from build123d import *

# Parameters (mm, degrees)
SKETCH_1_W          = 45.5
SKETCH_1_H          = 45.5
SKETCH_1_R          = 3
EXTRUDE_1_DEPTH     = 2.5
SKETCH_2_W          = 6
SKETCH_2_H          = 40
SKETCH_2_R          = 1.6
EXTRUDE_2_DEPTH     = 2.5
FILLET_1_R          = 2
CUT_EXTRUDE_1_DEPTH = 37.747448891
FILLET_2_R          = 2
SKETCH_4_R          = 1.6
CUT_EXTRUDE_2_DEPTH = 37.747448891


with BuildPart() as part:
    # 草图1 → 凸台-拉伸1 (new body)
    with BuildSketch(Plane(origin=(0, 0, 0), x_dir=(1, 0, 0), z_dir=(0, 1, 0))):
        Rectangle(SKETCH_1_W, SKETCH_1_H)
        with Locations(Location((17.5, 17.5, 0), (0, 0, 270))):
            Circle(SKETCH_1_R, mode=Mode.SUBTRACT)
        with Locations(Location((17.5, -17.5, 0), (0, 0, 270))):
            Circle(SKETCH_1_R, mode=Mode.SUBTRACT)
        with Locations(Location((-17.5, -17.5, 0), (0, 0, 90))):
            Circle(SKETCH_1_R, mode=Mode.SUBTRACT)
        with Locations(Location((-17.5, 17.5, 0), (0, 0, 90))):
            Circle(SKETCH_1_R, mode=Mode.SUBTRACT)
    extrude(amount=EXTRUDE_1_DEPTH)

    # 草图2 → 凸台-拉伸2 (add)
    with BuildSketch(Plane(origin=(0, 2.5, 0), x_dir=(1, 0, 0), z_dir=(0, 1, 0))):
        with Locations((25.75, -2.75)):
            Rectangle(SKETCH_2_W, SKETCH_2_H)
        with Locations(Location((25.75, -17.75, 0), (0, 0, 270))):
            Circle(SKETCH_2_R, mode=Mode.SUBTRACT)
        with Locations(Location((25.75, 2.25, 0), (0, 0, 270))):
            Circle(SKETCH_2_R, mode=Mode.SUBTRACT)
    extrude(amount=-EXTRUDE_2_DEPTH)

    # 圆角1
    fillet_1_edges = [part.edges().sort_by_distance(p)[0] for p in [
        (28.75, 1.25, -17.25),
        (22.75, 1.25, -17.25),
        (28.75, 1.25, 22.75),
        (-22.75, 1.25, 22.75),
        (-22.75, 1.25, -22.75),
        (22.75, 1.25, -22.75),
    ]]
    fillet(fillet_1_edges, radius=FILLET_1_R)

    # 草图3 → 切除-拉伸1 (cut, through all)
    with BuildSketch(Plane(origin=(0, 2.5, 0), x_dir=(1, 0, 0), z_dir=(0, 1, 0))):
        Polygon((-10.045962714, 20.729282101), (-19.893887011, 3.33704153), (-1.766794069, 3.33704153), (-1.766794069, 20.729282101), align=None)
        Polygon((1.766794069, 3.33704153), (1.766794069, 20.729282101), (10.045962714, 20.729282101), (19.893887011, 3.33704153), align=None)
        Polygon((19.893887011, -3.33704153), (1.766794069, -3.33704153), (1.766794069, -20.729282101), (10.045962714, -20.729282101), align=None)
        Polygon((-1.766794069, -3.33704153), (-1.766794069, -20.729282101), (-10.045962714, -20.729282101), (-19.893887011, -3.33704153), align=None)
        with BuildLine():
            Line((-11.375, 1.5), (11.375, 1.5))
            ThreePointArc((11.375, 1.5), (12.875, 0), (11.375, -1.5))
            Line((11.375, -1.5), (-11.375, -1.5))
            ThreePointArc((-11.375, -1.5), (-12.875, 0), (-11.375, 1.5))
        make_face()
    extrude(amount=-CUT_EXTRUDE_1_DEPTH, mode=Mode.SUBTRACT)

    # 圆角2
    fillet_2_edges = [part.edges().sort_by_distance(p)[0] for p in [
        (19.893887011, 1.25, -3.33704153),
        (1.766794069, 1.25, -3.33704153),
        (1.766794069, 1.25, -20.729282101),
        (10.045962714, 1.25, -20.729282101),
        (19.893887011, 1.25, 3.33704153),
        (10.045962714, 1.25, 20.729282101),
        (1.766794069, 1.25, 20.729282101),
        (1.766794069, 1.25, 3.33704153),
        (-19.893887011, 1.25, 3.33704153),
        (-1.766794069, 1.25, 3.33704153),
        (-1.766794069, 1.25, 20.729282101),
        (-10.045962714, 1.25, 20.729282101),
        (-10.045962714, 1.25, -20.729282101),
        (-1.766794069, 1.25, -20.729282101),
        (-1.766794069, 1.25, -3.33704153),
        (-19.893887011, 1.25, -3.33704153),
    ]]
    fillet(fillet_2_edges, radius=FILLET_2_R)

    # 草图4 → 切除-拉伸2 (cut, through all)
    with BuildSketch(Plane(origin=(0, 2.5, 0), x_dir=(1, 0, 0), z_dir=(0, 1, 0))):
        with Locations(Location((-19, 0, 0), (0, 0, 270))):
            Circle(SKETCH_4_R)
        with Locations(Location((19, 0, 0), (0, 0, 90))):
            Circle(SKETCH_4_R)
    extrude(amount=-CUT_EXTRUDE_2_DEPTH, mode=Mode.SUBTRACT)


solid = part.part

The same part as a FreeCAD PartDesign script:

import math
import FreeCAD as App
import Part
import Sketcher
from FreeCAD import Vector
Q = App.Units.Quantity


def edges_at(feature, points):
    """Names of the edges that pass closest to the given points."""
    edges = feature.Shape.Edges
    near = lambda p: min(range(len(edges)), key=lambda i: edges[i].distToShape(Part.Vertex(*p))[0])
    return sorted({f"Edge{near(p) + 1}" for p in points})

doc = App.newDocument("Part")
body = doc.addObject("PartDesign::Body", "Body")

# Sketch on XZ plane
sketch1 = body.newObject("Sketcher::SketchObject", "Sketch")
sketch1.AttachmentSupport = (doc.getObject("XZ_Plane"), [""])
sketch1.MapMode = "FlatFace"
sketch1.addGeometry(Part.LineSegment(Vector(-22.8, -22.8, 0), Vector(-22.8, 22.8, 0)), False)
sketch1.addGeometry(Part.LineSegment(Vector(-22.8, 22.8, 0), Vector(22.8, 22.8, 0)), False)
sketch1.addGeometry(Part.LineSegment(Vector(22.8, 22.8, 0), Vector(22.8, -22.8, 0)), False)
sketch1.addGeometry(Part.LineSegment(Vector(22.8, -22.8, 0), Vector(-22.8, -22.8, 0)), False)
sketch1.addGeometry(Part.Circle(Vector(-17.5, 17.5, 0), Vector(0, 0, 1), 3), False)
sketch1.addGeometry(Part.Circle(Vector(17.5, 17.5, 0), Vector(0, 0, 1), 3), False)
sketch1.addGeometry(Part.Circle(Vector(-17.5, -17.5, 0), Vector(0, 0, 1), 3), False)
sketch1.addGeometry(Part.Circle(Vector(17.5, -17.5, 0), Vector(0, 0, 1), 3), False)
sketch1.addConstraint(Sketcher.Constraint("Coincident", 0, 2, 1, 1))
sketch1.addConstraint(Sketcher.Constraint("Coincident", 1, 2, 2, 1))
sketch1.addConstraint(Sketcher.Constraint("Coincident", 2, 2, 3, 1))
sketch1.addConstraint(Sketcher.Constraint("Coincident", 3, 2, 0, 1))
sketch1.addConstraint(Sketcher.Constraint("Vertical", 0))
sketch1.addConstraint(Sketcher.Constraint("Horizontal", 1))
sketch1.addConstraint(Sketcher.Constraint("Vertical", 2))
sketch1.addConstraint(Sketcher.Constraint("Horizontal", 3))
sketch1.addConstraint(Sketcher.Constraint("Equal", 4, 5))
sketch1.addConstraint(Sketcher.Constraint("Equal", 5, 6))
sketch1.addConstraint(Sketcher.Constraint("Equal", 6, 7))
sketch1.addConstraint(Sketcher.Constraint("Symmetric", 5, 3, 6, 3, -1, 1))
sketch1.addConstraint(Sketcher.Constraint("Symmetric", 4, 3, 7, 3, -1, 1))
sketch1.addConstraint(Sketcher.Constraint("Symmetric", 0, 2, 2, 2, -1, 1))
sketch1.addConstraint(Sketcher.Constraint("Symmetric", 4, 3, 5, 3, -2))
sketch1.addConstraint(Sketcher.Constraint("Equal", 3, 0))
sketch1.addConstraint(Sketcher.Constraint("Diameter", 4, Q("6 mm")))
sketch1.addConstraint(Sketcher.Constraint("DistanceX", 1, 1, 1, 2, Q("45.5 mm")))
sketch1.addConstraint(Sketcher.Constraint("DistanceX", 4, 3, 5, 3, Q("35 mm")))
sketch1.addConstraint(Sketcher.Constraint("DistanceY", 6, 3, 4, 3, Q("35 mm")))
pad1 = body.newObject("PartDesign::Pad", "Pad")
pad1.Profile = sketch1
pad1.Length = 2.5
pad1.Reversed = True

# Sketch on XZ plane
sketch2 = body.newObject("Sketcher::SketchObject", "Sketch001")
sketch2.AttachmentSupport = (doc.getObject("XZ_Plane"), [""])
sketch2.MapMode = "FlatFace"
sketch2.AttachmentOffset = App.Placement(Vector(0, 0, -2.5), App.Rotation())
sketch2.addGeometry(Part.LineSegment(Vector(22.8, -17.2, 0), Vector(22.8, 22.8, 0)), False)
sketch2.addGeometry(Part.LineSegment(Vector(22.8, 22.8, 0), Vector(28.8, 22.8, 0)), False)
sketch2.addGeometry(Part.LineSegment(Vector(28.8, 22.8, 0), Vector(28.8, -17.2, 0)), False)
sketch2.addGeometry(Part.LineSegment(Vector(28.8, -17.2, 0), Vector(22.8, -17.2, 0)), False)
sketch2.addGeometry(Part.Circle(Vector(25.8, 17.8, 0), Vector(0, 0, 1), 1.6), False)
sketch2.addGeometry(Part.Circle(Vector(25.8, -2.2, 0), Vector(0, 0, 1), 1.6), False)
sketch2.addConstraint(Sketcher.Constraint("Coincident", 0, 2, 1, 1))
sketch2.addConstraint(Sketcher.Constraint("Coincident", 1, 2, 2, 1))
sketch2.addConstraint(Sketcher.Constraint("Coincident", 2, 2, 3, 1))
sketch2.addConstraint(Sketcher.Constraint("Coincident", 3, 2, 0, 1))
sketch2.addConstraint(Sketcher.Constraint("Vertical", 0))
sketch2.addConstraint(Sketcher.Constraint("Horizontal", 1))
sketch2.addConstraint(Sketcher.Constraint("Vertical", 2))
sketch2.addConstraint(Sketcher.Constraint("Horizontal", 3))
sketch2.addConstraint(Sketcher.Constraint("Equal", 4, 5))
sketch2.addConstraint(Sketcher.Constraint("Vertical", 4, 3, 5, 3))
sketch2.addConstraint(Sketcher.Constraint("Diameter", 4, Q("3.2 mm")))
sketch2.addConstraint(Sketcher.Constraint("DistanceX", 1, 1, 1, 2, Q("6 mm")))
sketch2.addConstraint(Sketcher.Constraint("DistanceY", 0, 1, 0, 2, Q("40 mm")))
sketch2.addConstraint(Sketcher.Constraint("DistanceY", 5, 3, 4, 3, Q("20 mm")))
sketch2.addConstraint(Sketcher.Constraint("DistanceX", 0, 2, 4, 3, Q("3 mm")))
sketch2.addConstraint(Sketcher.Constraint("DistanceY", 4, 3, 0, 2, Q("5 mm")))
sketch2.addConstraint(Sketcher.Constraint("DistanceX", -1, 1, 4, 3, Q("25.75 mm")))
sketch2.addConstraint(Sketcher.Constraint("DistanceY", -1, 1, 4, 3, Q("17.75 mm")))
pad2 = body.newObject("PartDesign::Pad", "Pad001")
pad2.Profile = sketch2
pad2.Length = 2.5
doc.recompute()

fillet = body.newObject("PartDesign::Fillet", "Fillet")
fillet.Base = (pad2, edges_at(pad2, [
    (28.75, 1.25, -17.25),
    (22.75, 1.25, -17.25),
    (28.75, 1.25, 22.75),
    (-22.75, 1.25, 22.75),
    (-22.75, 1.25, -22.75),
    (22.75, 1.25, -22.75),
]))
fillet.Radius = 2

# Sketch on XZ plane
sketch3 = body.newObject("Sketcher::SketchObject", "Sketch002")
sketch3.AttachmentSupport = (doc.getObject("XZ_Plane"), [""])
sketch3.MapMode = "FlatFace"
sketch3.AttachmentOffset = App.Placement(Vector(0, 0, -2.5), App.Rotation())
sketch3.addGeometry(Part.LineSegment(Vector(-10, -20.7, 0), Vector(-19.9, -3.3, 0)), False)
sketch3.addGeometry(Part.LineSegment(Vector(-19.9, -3.3, 0), Vector(-1.8, -3.3, 0)), False)
sketch3.addGeometry(Part.LineSegment(Vector(-1.8, -3.3, 0), Vector(-1.8, -20.7, 0)), False)
sketch3.addGeometry(Part.LineSegment(Vector(-1.8, -20.7, 0), Vector(-10, -20.7, 0)), False)
sketch3.addGeometry(Part.LineSegment(Vector(1.8, -20.7, 0), Vector(1.8, -3.3, 0)), False)
sketch3.addGeometry(Part.LineSegment(Vector(1.8, -3.3, 0), Vector(19.9, -3.3, 0)), False)
sketch3.addGeometry(Part.LineSegment(Vector(19.9, -3.3, 0), Vector(10, -20.7, 0)), False)
sketch3.addGeometry(Part.LineSegment(Vector(10, -20.7, 0), Vector(1.8, -20.7, 0)), False)
sketch3.addGeometry(Part.LineSegment(Vector(19.9, 3.3, 0), Vector(1.8, 3.3, 0)), False)
sketch3.addGeometry(Part.LineSegment(Vector(1.8, 3.3, 0), Vector(1.8, 20.7, 0)), False)
sketch3.addGeometry(Part.LineSegment(Vector(1.8, 20.7, 0), Vector(10, 20.7, 0)), False)
sketch3.addGeometry(Part.LineSegment(Vector(10, 20.7, 0), Vector(19.9, 3.3, 0)), False)
sketch3.addGeometry(Part.LineSegment(Vector(-1.8, 20.7, 0), Vector(-1.8, 3.3, 0)), False)
sketch3.addGeometry(Part.LineSegment(Vector(-1.8, 3.3, 0), Vector(-19.9, 3.3, 0)), False)
sketch3.addGeometry(Part.LineSegment(Vector(-19.9, 3.3, 0), Vector(-10, 20.7, 0)), False)
sketch3.addGeometry(Part.LineSegment(Vector(-10, 20.7, 0), Vector(-1.8, 20.7, 0)), False)
sketch3.addGeometry(Part.LineSegment(Vector(11.4, -1.5, 0), Vector(-11.4, -1.5, 0)), False)
sketch3.addGeometry(Part.ArcOfCircle(Part.Circle(Vector(-11.4, 0, 0), Vector(0, 0, 1), 1.5), math.radians(90), math.radians(270)), False)
sketch3.addGeometry(Part.LineSegment(Vector(-11.4, 1.5, 0), Vector(11.4, 1.5, 0)), False)
sketch3.addGeometry(Part.ArcOfCircle(Part.Circle(Vector(11.4, 0, 0), Vector(0, 0, 1), 1.5), math.radians(-90), math.radians(90)), False)
sketch3.addConstraint(Sketcher.Constraint("Coincident", 0, 2, 1, 1))
sketch3.addConstraint(Sketcher.Constraint("Coincident", 1, 2, 2, 1))
sketch3.addConstraint(Sketcher.Constraint("Coincident", 2, 2, 3, 1))
sketch3.addConstraint(Sketcher.Constraint("Coincident", 3, 2, 0, 1))
sketch3.addConstraint(Sketcher.Constraint("Coincident", 4, 2, 5, 1))
sketch3.addConstraint(Sketcher.Constraint("Coincident", 5, 2, 6, 1))
sketch3.addConstraint(Sketcher.Constraint("Coincident", 6, 2, 7, 1))
sketch3.addConstraint(Sketcher.Constraint("Coincident", 7, 2, 4, 1))
sketch3.addConstraint(Sketcher.Constraint("Coincident", 8, 2, 9, 1))
sketch3.addConstraint(Sketcher.Constraint("Coincident", 9, 2, 10, 1))
sketch3.addConstraint(Sketcher.Constraint("Coincident", 10, 2, 11, 1))
sketch3.addConstraint(Sketcher.Constraint("Coincident", 11, 2, 8, 1))
sketch3.addConstraint(Sketcher.Constraint("Coincident", 12, 2, 13, 1))
sketch3.addConstraint(Sketcher.Constraint("Coincident", 13, 2, 14, 1))
sketch3.addConstraint(Sketcher.Constraint("Coincident", 14, 2, 15, 1))
sketch3.addConstraint(Sketcher.Constraint("Coincident", 15, 2, 12, 1))
sketch3.addConstraint(Sketcher.Constraint("Tangent", 16, 2, 17, 2))
sketch3.addConstraint(Sketcher.Constraint("Tangent", 17, 1, 18, 1))
sketch3.addConstraint(Sketcher.Constraint("Tangent", 18, 2, 19, 2))
sketch3.addConstraint(Sketcher.Constraint("Tangent", 19, 1, 16, 1))
sketch3.addConstraint(Sketcher.Constraint("Horizontal", 1))
sketch3.addConstraint(Sketcher.Constraint("Vertical", 2))
sketch3.addConstraint(Sketcher.Constraint("Horizontal", 3))
sketch3.addConstraint(Sketcher.Constraint("Vertical", 4))
sketch3.addConstraint(Sketcher.Constraint("Horizontal", 5))
sketch3.addConstraint(Sketcher.Constraint("Horizontal", 7))
sketch3.addConstraint(Sketcher.Constraint("Horizontal", 8))
sketch3.addConstraint(Sketcher.Constraint("Vertical", 9))
sketch3.addConstraint(Sketcher.Constraint("Horizontal", 10))
sketch3.addConstraint(Sketcher.Constraint("Vertical", 12))
sketch3.addConstraint(Sketcher.Constraint("Horizontal", 13))
sketch3.addConstraint(Sketcher.Constraint("Horizontal", 15))
sketch3.addConstraint(Sketcher.Constraint("Horizontal", 16))
sketch3.addConstraint(Sketcher.Constraint("Horizontal", 18))
sketch3.addConstraint(Sketcher.Constraint("Symmetric", 17, 3, 19, 3, -1, 1))
sketch3.addConstraint(Sketcher.Constraint("Symmetric", 1, 2, 8, 2, -1, 1))
sketch3.addConstraint(Sketcher.Constraint("Symmetric", 3, 2, 10, 2, -1, 1))
sketch3.addConstraint(Sketcher.Constraint("Symmetric", 4, 2, 12, 2, -1, 1))
sketch3.addConstraint(Sketcher.Constraint("Symmetric", 6, 2, 14, 2, -1, 1))
sketch3.addConstraint(Sketcher.Constraint("Symmetric", 1, 2, 4, 2, -2))
sketch3.addConstraint(Sketcher.Constraint("Symmetric", 3, 2, 6, 2, -2))
sketch3.addConstraint(Sketcher.Constraint("Parallel", 0, 11))
sketch3.addConstraint(Sketcher.Constraint("Parallel", 6, 14))
sketch3.addConstraint(Sketcher.Constraint("Vertical", 5, 2, 11, 2))
sketch3.addConstraint(Sketcher.Constraint("Radius", 17, Q("1.5 mm")))
sketch3.addConstraint(Sketcher.Constraint("DistanceX", 16, 2, 16, 1, Q("22.75 mm")))
sketch3.addConstraint(Sketcher.Constraint("DistanceX", 3, 2, 3, 1, Q("8.279169 mm")))
sketch3.addConstraint(Sketcher.Constraint("DistanceY", 2, 2, 2, 1, Q("17.392241 mm")))
sketch3.addConstraint(Sketcher.Constraint("DistanceX", 1, 1, 1, 2, Q("18.127093 mm")))
sketch3.addConstraint(Sketcher.Constraint("DistanceY", 0, 2, -1, 1, Q("3.337042 mm")))
sketch3.addConstraint(Sketcher.Constraint("DistanceX", 1, 2, 4, 2, Q("3.533588 mm")))
pocket1 = body.newObject("PartDesign::Pocket", "Pocket")
pocket1.Profile = sketch3
pocket1.Type = "ThroughAll"
pocket1.Reversed = True
doc.recompute()

fillet2 = body.newObject("PartDesign::Fillet", "Fillet001")
fillet2.Base = (pocket1, edges_at(pocket1, [
    (19.894, 1.25, -3.337),
    (1.767, 1.25, -3.337),
    (1.767, 1.25, -20.729),
    (10.046, 1.25, -20.729),
    (19.894, 1.25, 3.337),
    (10.046, 1.25, 20.729),
    (1.767, 1.25, 20.729),
    (1.767, 1.25, 3.337),
    (-19.894, 1.25, 3.337),
    (-1.767, 1.25, 3.337),
    (-1.767, 1.25, 20.729),
    (-10.046, 1.25, 20.729),
    (-10.046, 1.25, -20.729),
    (-1.767, 1.25, -20.729),
    (-1.767, 1.25, -3.337),
    (-19.894, 1.25, -3.337),
]))
fillet2.Radius = 2

# Sketch on XZ plane
sketch4 = body.newObject("Sketcher::SketchObject", "Sketch003")
sketch4.AttachmentSupport = (doc.getObject("XZ_Plane"), [""])
sketch4.MapMode = "FlatFace"
sketch4.AttachmentOffset = App.Placement(Vector(0, 0, -2.5), App.Rotation())
sketch4.addGeometry(Part.Circle(Vector(-19, 0, 0), Vector(0, 0, 1), 1.6), False)
sketch4.addGeometry(Part.Circle(Vector(19, 0, 0), Vector(0, 0, 1), 1.6), False)
sketch4.addConstraint(Sketcher.Constraint("Equal", 0, 1))
sketch4.addConstraint(Sketcher.Constraint("Symmetric", 0, 3, 1, 3, -1, 1))
sketch4.addConstraint(Sketcher.Constraint("PointOnObject", 0, 3, -1))
sketch4.addConstraint(Sketcher.Constraint("Diameter", 0, Q("3.2 mm")))
sketch4.addConstraint(Sketcher.Constraint("DistanceX", 0, 3, -1, 1, Q("19 mm")))
pocket2 = body.newObject("PartDesign::Pocket", "Pocket001")
pocket2.Profile = sketch4
pocket2.Type = "ThroughAll"
pocket2.Reversed = True

doc.recompute()
